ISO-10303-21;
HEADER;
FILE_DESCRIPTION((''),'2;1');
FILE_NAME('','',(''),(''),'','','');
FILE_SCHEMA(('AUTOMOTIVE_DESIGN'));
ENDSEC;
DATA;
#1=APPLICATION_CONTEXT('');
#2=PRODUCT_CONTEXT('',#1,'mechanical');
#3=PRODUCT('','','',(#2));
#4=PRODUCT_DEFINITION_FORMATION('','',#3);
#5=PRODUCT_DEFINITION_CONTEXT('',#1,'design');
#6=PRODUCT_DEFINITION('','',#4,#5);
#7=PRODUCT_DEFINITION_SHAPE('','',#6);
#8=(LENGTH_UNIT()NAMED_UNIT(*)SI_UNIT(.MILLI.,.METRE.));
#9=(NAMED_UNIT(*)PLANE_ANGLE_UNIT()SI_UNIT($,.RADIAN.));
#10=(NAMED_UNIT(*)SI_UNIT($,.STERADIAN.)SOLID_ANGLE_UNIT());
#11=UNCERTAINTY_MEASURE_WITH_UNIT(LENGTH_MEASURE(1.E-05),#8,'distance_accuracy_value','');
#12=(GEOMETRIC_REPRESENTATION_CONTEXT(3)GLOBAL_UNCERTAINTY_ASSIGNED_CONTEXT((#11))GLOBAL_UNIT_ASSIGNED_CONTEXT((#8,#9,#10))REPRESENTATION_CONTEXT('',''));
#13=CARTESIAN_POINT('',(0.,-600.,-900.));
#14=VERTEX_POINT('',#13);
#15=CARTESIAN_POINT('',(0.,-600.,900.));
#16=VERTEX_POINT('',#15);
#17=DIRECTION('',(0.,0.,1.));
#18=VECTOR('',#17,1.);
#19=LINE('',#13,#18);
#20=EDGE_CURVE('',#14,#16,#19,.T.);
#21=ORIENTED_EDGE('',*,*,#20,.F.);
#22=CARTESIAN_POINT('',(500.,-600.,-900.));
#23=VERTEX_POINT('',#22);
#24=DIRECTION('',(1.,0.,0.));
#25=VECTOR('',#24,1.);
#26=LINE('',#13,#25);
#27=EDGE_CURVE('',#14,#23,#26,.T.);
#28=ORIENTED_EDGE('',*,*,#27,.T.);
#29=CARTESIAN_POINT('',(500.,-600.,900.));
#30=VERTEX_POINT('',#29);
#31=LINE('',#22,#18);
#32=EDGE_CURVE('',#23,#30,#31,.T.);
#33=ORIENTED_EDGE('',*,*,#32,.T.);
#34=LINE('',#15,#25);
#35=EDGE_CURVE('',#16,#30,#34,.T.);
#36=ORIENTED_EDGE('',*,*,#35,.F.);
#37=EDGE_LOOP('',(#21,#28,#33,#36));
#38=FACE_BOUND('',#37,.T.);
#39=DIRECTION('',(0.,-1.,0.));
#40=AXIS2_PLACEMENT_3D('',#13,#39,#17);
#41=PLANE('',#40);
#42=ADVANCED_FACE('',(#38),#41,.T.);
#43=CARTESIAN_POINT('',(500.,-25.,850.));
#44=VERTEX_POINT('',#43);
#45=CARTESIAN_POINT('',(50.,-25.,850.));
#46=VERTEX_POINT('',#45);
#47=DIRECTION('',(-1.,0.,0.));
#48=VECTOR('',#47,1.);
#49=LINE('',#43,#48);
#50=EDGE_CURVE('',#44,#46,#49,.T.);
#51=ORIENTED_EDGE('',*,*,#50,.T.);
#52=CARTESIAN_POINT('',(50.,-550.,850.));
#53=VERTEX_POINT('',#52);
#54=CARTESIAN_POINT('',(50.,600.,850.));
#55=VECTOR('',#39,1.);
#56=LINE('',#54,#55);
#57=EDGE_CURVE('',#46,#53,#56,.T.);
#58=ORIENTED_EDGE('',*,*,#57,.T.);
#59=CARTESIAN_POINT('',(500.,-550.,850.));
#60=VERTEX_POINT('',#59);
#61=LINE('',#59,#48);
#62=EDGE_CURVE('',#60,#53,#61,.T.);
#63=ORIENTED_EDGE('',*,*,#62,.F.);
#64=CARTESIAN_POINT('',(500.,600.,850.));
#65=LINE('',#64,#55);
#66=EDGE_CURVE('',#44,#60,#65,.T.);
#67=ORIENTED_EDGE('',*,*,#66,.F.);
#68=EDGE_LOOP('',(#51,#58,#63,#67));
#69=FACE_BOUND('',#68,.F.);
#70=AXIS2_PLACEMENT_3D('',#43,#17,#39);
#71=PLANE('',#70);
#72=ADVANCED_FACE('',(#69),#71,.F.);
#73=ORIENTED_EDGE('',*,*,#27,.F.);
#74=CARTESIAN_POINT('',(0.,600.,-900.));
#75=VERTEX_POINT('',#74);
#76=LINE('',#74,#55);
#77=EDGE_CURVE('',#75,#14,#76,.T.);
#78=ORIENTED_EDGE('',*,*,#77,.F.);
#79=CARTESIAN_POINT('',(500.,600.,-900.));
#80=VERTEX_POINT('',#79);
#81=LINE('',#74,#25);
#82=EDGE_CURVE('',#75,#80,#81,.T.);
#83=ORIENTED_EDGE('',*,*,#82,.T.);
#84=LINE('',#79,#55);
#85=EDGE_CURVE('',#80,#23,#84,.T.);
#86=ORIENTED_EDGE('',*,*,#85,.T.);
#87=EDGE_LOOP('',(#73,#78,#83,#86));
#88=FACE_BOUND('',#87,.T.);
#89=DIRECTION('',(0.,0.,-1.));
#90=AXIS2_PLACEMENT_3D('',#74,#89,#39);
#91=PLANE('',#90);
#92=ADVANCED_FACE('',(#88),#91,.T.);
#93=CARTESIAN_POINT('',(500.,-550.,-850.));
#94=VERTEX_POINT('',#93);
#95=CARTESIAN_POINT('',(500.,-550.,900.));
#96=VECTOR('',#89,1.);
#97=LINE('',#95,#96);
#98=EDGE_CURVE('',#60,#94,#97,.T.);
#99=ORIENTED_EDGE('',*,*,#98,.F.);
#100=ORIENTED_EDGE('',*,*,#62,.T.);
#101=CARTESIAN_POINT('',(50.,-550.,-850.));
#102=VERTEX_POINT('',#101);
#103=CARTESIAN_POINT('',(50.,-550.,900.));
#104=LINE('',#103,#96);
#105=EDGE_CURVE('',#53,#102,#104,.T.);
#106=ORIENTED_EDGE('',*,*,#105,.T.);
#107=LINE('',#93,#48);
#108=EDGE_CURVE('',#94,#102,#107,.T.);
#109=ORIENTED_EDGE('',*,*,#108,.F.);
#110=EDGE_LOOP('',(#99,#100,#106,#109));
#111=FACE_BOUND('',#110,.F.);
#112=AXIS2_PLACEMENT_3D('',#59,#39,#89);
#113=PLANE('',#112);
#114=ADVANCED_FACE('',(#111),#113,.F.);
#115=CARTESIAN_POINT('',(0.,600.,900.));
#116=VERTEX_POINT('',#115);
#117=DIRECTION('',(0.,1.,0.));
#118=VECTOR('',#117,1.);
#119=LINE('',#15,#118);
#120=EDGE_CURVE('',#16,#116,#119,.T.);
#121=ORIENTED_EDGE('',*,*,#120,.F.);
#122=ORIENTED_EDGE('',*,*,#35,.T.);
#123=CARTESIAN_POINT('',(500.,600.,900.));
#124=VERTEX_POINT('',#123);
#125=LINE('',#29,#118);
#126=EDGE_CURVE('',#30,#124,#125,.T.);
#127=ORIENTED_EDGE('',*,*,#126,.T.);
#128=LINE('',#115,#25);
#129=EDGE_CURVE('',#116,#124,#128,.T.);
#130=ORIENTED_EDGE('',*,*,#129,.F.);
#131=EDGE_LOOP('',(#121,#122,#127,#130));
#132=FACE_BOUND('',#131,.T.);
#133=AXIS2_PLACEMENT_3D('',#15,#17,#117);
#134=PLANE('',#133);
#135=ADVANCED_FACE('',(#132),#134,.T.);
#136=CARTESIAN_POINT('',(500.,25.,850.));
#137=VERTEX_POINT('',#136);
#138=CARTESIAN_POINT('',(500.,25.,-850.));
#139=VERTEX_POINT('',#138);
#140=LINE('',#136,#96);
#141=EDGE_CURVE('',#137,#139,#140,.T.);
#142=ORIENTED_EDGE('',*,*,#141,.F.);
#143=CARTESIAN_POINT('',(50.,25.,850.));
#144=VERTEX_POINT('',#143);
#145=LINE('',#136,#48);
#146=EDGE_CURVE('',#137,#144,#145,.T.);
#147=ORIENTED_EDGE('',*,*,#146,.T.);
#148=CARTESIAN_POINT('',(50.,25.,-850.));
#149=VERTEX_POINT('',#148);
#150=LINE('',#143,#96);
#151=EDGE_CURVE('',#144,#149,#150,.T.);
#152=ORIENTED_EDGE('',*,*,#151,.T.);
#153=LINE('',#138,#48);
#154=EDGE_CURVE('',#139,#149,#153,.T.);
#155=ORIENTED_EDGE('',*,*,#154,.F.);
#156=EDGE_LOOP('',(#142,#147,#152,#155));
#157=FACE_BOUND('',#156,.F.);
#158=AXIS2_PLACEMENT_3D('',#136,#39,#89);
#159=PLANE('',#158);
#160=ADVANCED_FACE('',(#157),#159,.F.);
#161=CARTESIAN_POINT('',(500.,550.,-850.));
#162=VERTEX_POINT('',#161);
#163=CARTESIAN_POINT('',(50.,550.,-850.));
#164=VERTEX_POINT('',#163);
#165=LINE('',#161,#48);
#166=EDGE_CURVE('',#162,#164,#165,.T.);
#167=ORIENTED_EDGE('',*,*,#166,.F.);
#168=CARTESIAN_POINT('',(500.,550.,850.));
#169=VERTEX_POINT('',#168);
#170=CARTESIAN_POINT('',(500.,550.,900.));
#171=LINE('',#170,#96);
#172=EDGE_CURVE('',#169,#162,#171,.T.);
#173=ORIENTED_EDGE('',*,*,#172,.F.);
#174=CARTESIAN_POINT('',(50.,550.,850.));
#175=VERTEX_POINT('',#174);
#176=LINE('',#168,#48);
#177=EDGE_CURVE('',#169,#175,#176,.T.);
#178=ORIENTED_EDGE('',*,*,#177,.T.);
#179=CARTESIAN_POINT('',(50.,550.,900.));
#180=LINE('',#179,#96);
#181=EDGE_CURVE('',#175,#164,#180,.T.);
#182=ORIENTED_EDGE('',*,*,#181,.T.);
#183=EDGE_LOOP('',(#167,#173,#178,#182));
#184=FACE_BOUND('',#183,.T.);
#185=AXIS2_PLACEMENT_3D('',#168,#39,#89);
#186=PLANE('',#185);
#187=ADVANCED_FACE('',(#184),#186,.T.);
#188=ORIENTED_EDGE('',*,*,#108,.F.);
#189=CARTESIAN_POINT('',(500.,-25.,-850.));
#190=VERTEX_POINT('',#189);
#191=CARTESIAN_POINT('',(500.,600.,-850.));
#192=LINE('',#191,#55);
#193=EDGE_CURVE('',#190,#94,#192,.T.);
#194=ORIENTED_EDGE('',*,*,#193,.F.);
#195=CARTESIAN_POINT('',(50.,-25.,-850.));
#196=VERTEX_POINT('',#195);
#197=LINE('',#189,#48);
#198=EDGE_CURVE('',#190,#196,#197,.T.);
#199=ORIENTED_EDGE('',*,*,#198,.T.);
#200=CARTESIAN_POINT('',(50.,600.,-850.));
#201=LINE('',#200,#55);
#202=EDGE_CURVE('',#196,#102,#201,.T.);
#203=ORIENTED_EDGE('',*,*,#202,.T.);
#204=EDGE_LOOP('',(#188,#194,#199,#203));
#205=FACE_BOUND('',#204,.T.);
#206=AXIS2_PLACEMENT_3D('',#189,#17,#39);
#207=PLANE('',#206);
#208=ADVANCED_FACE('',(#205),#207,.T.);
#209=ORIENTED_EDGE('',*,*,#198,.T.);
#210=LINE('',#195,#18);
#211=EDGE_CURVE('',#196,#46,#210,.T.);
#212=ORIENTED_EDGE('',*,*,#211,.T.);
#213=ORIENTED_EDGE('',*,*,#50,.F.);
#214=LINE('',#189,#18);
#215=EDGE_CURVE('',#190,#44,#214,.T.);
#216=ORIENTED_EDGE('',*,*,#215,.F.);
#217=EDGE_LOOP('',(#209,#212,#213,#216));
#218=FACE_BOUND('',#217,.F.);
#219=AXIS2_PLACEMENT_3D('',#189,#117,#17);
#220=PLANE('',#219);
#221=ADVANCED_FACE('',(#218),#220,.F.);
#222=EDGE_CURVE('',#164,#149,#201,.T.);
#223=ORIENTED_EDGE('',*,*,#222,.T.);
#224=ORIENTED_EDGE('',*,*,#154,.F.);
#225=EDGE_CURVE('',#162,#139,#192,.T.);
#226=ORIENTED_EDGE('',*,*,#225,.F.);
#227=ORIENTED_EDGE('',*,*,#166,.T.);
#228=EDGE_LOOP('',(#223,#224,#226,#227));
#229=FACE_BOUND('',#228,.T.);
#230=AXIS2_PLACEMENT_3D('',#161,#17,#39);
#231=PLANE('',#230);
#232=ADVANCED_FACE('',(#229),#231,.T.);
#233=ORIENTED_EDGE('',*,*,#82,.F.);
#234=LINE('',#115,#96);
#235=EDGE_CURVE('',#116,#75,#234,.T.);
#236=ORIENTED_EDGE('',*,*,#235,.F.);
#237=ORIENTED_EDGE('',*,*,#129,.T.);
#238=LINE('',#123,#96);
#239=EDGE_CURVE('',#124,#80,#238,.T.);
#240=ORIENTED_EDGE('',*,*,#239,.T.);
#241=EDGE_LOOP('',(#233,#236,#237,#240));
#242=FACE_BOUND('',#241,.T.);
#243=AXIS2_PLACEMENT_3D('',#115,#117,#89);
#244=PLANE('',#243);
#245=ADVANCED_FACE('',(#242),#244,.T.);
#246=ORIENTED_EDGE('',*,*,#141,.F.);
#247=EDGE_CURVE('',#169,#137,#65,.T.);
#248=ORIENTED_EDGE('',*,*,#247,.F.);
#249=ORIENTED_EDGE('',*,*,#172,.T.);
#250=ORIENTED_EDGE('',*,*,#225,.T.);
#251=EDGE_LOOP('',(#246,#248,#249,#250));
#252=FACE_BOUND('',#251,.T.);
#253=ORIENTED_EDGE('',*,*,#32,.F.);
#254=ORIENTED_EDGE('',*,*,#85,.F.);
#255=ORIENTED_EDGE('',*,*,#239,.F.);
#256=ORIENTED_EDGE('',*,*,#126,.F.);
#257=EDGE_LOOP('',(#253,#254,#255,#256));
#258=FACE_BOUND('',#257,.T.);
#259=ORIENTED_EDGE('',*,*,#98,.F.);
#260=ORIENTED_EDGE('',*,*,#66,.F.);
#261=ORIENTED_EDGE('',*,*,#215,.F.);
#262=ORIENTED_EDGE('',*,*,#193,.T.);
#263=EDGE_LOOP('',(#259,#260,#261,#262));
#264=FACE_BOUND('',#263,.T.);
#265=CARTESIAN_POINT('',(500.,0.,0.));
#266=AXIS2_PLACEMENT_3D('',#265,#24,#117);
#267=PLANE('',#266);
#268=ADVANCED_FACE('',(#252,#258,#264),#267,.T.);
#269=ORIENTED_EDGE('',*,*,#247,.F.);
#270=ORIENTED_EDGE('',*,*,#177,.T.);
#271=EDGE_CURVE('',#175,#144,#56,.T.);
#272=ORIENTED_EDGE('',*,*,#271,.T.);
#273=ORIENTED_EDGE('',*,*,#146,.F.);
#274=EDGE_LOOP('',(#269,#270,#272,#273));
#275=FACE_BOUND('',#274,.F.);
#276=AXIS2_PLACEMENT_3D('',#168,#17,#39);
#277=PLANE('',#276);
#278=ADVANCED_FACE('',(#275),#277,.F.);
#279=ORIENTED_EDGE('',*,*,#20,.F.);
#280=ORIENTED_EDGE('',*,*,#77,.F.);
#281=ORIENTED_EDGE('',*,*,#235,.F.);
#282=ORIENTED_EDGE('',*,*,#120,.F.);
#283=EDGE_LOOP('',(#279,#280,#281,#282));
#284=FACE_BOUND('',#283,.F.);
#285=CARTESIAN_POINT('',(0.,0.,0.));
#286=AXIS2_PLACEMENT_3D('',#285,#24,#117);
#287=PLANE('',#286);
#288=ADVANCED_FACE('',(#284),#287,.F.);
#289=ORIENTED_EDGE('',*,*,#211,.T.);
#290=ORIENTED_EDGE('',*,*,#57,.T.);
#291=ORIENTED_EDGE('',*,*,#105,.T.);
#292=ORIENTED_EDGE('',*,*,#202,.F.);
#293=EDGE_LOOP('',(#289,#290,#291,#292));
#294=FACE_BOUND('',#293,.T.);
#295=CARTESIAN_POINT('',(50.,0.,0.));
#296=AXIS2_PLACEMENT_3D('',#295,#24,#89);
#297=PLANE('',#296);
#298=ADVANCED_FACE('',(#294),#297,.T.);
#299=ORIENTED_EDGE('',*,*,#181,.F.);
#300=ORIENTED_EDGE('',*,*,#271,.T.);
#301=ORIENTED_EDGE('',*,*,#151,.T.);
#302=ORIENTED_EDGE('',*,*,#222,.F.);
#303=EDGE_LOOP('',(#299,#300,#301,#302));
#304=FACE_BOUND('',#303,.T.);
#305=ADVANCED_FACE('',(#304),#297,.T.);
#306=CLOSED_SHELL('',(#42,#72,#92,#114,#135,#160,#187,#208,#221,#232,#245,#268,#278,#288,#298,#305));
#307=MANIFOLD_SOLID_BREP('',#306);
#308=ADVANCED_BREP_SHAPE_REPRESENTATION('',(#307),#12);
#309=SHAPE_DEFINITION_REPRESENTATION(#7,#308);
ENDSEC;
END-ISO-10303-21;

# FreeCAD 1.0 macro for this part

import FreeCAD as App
import Part
import Sketcher


def add_polygon(sketch, points):
    """Adds a closed chain of lines whose ends are joined by coincident constraints."""
    first, n = sketch.GeometryCount, len(points)
    for a, b in zip(points, points[1:] + points[:1]):
        sketch.addGeometry(Part.LineSegment(App.Vector(*a, 0), App.Vector(*b, 0)), False)
    for i in range(n):
        sketch.addConstraint(Sketcher.Constraint("Coincident", first + i, 2, first + (i + 1) % n, 1))

doc = App.newDocument("Part")
body = doc.addObject("PartDesign::Body", "Body")

# Sketch on YZ plane
sketch1 = body.newObject("Sketcher::SketchObject", "Sketch")
sketch1.AttachmentSupport = (doc.getObject("YZ_Plane"), [""])
sketch1.MapMode = "FlatFace"
add_polygon(sketch1, [(600, 900), (-600, 900), (-600, -900), (600, -900)])  # lines 0-3
sketch1.addConstraint([
    Sketcher.Constraint("Horizontal", 0),
    Sketcher.Constraint("Vertical", 1),
    Sketcher.Constraint("Horizontal", 2),
    Sketcher.Constraint("Vertical", 3),
    Sketcher.Constraint("Symmetric", 0, 2, 2, 2, -1, 1),
    Sketcher.Constraint("DistanceX", 0, 2, 0, 1, 1200.0),
    Sketcher.Constraint("DistanceY", 1, 2, 1, 1, 1800.0),
])
pad1 = body.newObject("PartDesign::Pad", "Pad")
pad1.Profile = sketch1
pad1.Length = 500

# Sketch on YZ plane
sketch2 = body.newObject("Sketcher::SketchObject", "Sketch001")
sketch2.AttachmentSupport = (doc.getObject("YZ_Plane"), [""])
sketch2.MapMode = "FlatFace"
sketch2.AttachmentOffset = App.Placement(App.Vector(0, 0, 500), App.Rotation())
add_polygon(sketch2, [(550, -850), (550, 850), (25, 850), (25, -850)])  # lines 0-3
add_polygon(sketch2, [(-25, 850), (-550, 850), (-550, -850), (-25, -850)])  # lines 4-7
sketch2.addConstraint([
    Sketcher.Constraint("Vertical", 0),
    Sketcher.Constraint("Horizontal", 1),
    Sketcher.Constraint("Vertical", 2),
    Sketcher.Constraint("Horizontal", 3),
    Sketcher.Constraint("Horizontal", 4),
    Sketcher.Constraint("Vertical", 5),
    Sketcher.Constraint("Horizontal", 6),
    Sketcher.Constraint("Vertical", 7),
    Sketcher.Constraint("Symmetric", 3, 2, 4, 2, -1, 1),
    Sketcher.Constraint("Symmetric", 1, 2, 6, 2, -1, 1),
    Sketcher.Constraint("Horizontal", 1, 2, 4, 2),
    Sketcher.Constraint("DistanceX", -1, 1, 1, 2, 25.0),
    Sketcher.Constraint("DistanceX", 1, 2, 1, 1, 525.0),
    Sketcher.Constraint("DistanceY", 0, 1, 0, 2, 1700.0),
])
pocket1 = body.newObject("PartDesign::Pocket", "Pocket")
pocket1.Profile = sketch2
pocket1.Length = 450

doc.recompute()
